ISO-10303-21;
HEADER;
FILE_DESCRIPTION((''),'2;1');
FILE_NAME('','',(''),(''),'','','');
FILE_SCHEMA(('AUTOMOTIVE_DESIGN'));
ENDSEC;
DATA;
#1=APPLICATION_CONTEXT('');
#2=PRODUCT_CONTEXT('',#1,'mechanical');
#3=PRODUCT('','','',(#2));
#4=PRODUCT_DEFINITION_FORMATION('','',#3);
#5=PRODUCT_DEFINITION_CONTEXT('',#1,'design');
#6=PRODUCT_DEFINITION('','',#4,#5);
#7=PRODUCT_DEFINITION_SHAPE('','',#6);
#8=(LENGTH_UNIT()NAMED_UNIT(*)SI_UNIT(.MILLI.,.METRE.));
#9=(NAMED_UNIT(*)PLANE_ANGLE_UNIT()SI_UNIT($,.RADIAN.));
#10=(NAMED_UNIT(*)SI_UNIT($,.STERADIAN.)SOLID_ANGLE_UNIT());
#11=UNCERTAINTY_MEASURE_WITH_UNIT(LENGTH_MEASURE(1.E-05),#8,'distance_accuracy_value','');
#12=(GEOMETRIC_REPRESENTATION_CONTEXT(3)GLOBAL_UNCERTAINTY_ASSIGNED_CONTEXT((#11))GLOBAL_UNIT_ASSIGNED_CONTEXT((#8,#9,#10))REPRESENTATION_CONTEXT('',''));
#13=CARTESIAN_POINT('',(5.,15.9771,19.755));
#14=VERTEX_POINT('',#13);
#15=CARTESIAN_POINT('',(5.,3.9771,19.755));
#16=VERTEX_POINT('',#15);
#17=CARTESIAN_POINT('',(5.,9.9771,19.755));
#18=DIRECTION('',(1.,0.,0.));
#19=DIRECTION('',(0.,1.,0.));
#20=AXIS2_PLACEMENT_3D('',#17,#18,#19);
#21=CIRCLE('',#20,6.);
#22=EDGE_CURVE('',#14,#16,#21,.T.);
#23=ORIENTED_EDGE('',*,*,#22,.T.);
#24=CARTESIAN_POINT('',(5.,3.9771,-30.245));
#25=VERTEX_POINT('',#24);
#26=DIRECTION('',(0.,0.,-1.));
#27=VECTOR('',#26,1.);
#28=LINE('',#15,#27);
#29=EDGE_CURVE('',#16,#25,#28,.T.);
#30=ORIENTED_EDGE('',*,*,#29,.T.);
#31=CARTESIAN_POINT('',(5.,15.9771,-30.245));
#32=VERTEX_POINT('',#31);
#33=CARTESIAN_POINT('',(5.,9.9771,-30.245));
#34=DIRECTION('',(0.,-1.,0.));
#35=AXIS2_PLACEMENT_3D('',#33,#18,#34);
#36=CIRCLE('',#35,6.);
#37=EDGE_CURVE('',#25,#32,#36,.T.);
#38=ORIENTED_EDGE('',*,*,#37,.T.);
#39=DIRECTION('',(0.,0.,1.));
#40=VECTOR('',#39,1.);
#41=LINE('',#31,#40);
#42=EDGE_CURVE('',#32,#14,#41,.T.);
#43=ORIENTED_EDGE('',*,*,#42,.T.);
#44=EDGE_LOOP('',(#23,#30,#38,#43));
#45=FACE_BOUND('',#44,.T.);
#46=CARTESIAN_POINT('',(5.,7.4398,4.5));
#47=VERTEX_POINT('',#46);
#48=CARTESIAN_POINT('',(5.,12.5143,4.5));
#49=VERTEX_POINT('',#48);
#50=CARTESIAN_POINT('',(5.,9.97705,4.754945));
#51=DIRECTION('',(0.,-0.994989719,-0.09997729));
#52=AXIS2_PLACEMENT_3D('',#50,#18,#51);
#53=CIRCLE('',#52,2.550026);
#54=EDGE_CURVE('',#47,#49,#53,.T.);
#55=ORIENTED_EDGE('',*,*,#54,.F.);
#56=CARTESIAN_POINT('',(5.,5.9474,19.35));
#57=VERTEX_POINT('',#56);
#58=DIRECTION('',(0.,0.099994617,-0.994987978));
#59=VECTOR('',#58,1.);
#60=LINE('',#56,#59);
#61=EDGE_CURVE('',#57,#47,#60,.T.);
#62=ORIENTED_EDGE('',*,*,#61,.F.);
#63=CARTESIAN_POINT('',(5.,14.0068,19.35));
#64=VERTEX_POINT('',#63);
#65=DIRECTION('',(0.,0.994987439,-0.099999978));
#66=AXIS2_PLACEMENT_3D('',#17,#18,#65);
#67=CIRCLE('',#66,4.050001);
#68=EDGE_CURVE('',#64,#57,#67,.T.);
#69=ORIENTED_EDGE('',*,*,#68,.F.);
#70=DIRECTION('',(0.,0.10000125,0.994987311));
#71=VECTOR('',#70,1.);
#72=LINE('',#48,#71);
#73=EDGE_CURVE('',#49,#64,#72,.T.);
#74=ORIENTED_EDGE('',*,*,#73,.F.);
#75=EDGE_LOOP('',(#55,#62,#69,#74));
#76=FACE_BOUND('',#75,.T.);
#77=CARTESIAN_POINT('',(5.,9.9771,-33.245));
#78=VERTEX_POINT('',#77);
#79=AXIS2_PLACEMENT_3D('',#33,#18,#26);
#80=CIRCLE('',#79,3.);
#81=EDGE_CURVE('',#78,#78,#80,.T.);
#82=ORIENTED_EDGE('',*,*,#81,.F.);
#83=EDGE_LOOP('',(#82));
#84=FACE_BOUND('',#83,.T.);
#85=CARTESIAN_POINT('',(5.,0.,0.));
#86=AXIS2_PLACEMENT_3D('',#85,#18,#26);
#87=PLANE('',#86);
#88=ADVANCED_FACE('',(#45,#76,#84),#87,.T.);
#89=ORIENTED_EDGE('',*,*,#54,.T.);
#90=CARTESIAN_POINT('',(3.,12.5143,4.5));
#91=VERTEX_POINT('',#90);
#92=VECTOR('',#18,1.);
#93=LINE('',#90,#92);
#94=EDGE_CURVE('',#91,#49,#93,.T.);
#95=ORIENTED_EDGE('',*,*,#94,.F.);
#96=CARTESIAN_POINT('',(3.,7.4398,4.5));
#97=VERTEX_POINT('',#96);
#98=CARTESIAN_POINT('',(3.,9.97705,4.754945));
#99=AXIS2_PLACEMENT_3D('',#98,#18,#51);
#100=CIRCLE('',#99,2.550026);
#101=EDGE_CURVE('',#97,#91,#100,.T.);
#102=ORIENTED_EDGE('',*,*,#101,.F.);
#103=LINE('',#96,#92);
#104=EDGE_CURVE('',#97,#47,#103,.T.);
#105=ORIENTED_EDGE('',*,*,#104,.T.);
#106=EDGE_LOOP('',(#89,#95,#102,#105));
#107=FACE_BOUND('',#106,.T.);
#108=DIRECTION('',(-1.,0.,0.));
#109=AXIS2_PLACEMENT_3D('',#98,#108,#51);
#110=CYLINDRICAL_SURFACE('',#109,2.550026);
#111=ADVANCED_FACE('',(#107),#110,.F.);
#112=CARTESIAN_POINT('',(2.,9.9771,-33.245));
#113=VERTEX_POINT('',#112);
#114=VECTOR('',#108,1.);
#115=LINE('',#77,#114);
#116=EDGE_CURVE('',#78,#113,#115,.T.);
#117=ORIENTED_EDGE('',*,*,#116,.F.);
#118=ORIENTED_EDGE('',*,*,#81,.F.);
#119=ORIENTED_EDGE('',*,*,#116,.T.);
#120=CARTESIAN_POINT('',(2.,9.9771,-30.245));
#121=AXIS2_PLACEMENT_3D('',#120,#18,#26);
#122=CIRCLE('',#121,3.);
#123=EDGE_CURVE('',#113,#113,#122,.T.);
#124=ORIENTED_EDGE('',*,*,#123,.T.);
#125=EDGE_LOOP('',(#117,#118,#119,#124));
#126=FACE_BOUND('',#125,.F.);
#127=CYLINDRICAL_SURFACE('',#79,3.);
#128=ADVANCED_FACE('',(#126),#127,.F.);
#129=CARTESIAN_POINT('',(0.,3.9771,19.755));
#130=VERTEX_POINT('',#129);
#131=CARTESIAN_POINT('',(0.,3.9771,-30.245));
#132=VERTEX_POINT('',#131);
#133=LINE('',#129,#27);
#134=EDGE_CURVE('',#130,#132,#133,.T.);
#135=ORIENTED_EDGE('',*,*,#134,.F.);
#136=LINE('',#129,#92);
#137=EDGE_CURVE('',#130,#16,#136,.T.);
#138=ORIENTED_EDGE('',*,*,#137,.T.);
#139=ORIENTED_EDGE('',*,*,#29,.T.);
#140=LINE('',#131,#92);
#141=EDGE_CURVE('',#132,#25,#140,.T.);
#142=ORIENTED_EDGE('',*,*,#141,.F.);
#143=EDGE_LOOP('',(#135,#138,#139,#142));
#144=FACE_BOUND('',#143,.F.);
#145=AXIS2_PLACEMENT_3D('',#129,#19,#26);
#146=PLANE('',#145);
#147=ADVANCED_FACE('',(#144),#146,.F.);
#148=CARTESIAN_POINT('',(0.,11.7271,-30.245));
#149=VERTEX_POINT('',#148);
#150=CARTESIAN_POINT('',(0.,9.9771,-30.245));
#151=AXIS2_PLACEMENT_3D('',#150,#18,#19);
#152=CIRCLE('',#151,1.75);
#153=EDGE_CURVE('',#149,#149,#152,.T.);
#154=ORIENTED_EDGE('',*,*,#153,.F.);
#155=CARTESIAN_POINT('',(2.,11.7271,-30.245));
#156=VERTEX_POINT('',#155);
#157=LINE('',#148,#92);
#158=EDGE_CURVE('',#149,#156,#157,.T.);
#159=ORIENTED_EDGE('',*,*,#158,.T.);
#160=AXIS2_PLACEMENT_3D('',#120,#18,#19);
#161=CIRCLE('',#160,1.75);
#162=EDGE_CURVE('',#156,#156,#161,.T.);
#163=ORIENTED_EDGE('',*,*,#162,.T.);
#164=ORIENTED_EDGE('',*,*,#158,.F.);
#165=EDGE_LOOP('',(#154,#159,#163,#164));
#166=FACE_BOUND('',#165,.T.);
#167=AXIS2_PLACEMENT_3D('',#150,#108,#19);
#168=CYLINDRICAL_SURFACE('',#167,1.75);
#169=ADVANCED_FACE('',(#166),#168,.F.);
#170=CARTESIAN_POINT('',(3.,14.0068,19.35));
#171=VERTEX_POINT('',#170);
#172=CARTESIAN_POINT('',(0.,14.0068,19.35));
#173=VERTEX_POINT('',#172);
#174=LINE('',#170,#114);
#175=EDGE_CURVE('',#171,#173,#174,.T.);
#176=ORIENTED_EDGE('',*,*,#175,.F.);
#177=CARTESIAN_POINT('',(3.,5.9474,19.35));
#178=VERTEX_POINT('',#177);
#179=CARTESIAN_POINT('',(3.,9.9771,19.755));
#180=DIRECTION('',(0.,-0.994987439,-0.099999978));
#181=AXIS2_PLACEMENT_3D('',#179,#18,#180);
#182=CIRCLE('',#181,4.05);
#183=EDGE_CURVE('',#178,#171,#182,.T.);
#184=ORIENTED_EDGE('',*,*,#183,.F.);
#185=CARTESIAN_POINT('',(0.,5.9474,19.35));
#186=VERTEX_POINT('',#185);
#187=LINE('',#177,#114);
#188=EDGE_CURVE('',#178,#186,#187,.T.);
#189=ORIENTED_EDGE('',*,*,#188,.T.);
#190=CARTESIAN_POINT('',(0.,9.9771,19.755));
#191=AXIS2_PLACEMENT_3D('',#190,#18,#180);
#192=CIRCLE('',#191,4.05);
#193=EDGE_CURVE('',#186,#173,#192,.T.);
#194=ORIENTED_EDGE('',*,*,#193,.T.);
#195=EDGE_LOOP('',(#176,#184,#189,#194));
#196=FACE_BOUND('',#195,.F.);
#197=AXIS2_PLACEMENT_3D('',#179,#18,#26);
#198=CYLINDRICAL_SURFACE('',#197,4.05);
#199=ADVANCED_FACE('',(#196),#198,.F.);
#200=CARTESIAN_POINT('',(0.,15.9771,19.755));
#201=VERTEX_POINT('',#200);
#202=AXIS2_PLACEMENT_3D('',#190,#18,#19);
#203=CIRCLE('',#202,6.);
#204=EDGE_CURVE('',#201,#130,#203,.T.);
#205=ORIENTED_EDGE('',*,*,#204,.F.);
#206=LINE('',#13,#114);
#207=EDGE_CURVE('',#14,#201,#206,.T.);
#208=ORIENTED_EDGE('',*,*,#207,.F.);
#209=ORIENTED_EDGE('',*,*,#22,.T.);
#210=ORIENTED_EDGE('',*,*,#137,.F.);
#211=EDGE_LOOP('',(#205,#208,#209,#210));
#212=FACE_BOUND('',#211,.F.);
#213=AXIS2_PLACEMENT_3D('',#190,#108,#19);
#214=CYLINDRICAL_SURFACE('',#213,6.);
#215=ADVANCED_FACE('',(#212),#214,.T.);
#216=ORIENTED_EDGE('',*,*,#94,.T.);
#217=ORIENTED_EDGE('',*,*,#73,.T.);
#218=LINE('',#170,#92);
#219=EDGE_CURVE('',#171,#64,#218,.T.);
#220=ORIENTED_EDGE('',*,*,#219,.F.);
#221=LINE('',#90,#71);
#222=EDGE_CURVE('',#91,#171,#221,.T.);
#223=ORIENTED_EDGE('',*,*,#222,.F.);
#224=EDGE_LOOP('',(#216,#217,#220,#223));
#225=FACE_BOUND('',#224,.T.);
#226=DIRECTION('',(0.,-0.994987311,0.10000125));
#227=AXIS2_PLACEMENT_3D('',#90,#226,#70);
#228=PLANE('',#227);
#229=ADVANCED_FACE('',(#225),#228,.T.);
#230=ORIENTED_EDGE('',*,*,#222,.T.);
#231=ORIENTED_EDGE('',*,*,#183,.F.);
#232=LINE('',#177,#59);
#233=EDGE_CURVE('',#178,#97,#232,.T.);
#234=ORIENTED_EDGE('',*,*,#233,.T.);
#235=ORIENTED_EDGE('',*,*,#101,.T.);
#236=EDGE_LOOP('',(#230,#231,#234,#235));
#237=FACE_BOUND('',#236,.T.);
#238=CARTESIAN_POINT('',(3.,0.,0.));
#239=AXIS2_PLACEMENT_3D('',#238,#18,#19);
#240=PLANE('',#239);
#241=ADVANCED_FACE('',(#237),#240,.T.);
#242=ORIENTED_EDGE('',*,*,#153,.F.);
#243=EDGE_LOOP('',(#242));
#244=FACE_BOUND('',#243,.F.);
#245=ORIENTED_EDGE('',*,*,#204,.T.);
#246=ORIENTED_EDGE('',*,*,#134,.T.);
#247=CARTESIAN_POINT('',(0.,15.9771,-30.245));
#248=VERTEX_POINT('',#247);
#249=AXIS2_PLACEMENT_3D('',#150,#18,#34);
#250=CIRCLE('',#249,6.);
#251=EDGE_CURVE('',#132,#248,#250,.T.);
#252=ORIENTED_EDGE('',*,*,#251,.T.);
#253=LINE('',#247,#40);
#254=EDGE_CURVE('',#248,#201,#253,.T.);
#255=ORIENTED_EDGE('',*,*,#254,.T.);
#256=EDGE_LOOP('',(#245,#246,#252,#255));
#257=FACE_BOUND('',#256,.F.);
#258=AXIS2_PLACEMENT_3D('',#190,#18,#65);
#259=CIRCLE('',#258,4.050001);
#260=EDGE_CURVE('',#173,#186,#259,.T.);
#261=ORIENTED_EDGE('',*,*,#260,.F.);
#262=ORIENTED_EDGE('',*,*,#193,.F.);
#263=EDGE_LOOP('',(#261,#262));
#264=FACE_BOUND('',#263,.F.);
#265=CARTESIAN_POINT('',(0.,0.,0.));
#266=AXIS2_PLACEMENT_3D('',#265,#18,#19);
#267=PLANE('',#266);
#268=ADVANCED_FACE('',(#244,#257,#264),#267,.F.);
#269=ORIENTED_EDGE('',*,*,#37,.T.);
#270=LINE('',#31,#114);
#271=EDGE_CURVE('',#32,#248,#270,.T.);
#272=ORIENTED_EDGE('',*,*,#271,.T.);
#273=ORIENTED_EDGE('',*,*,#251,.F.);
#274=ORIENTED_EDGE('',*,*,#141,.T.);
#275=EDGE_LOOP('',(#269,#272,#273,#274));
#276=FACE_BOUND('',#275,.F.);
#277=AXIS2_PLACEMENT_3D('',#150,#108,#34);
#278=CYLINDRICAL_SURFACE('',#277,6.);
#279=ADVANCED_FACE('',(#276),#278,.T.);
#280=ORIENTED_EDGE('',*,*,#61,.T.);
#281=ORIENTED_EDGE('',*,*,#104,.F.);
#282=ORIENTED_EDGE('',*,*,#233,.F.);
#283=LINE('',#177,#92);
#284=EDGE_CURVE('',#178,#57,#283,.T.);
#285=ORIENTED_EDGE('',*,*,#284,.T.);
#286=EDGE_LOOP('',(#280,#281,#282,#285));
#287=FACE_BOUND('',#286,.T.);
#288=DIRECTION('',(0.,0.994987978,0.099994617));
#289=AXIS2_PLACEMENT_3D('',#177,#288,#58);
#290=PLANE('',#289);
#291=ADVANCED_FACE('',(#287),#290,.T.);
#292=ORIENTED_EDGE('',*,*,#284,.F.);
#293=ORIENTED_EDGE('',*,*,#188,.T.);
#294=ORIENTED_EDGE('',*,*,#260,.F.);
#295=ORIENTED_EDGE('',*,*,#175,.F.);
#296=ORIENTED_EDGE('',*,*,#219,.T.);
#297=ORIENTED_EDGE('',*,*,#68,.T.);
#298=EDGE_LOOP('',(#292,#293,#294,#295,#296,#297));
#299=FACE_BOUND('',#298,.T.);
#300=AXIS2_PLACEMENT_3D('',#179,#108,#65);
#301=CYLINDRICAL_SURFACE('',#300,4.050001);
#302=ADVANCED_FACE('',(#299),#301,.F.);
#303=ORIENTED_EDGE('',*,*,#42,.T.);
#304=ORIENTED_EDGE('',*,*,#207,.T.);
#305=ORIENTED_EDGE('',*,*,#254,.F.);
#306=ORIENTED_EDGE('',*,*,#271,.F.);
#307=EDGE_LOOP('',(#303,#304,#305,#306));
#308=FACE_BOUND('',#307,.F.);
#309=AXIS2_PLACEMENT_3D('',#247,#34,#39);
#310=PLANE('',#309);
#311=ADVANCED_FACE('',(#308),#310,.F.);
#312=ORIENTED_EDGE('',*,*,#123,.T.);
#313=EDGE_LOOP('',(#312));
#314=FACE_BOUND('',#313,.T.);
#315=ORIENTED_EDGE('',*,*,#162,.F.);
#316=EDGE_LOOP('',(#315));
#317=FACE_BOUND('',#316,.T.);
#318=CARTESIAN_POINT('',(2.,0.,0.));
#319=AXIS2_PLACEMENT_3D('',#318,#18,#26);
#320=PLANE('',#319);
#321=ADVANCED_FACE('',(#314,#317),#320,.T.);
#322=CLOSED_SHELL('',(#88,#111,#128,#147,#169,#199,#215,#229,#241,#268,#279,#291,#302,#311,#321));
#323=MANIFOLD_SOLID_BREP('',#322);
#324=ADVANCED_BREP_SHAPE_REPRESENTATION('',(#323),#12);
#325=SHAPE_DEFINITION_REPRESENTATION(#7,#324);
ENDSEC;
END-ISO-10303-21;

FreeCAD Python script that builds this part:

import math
import FreeCAD as App
import Part
import Sketcher

V = App.Vector
Q = App.Units.Quantity

doc = App.newDocument("Part")
params = doc.addObject("Spreadsheet::Sheet", "Params")
for row, (alias, value) in enumerate([
    ("sketch1_radius", "6 mm"),
    ("sketch1_diameter", "3.5 mm"),
    ("sketch1_diameter2", "3.2 mm"),
    ("sketch1_height", "50 mm"),
    ("pad1_length", "3 mm"),
    ("sketch2_radius", "6 mm"),
    ("sketch2_diameter", "3.5 mm"),
    ("sketch2_height", "50 mm"),
    ("sketch2_radius2", "4.05 mm"),
    ("sketch2_radius3", "2.55 mm"),
    ("pad2_length", "2 mm"),
    ("sketch3_diameter", "8.1 mm"),
    ("pocket1_length", "3 mm"),
    ("sketch4_diameter", "6 mm"),
    ("pocket2_length", "3 mm"),
], start=1):
    params.set(f"A{row}", alias)
    params.set(f"B{row}", "=" + value)
    params.setAlias(f"B{row}", alias)

body = doc.addObject("PartDesign::Body", "Body")

sketch1 = body.newObject("Sketcher::SketchObject", "Sketch")
sketch1.AttachmentSupport = (doc.getObject("YZ_Plane"), [""])
sketch1.MapMode = "FlatFace"
sketch1.addGeometry([
    Part.ArcOfCircle(Part.Circle(V(10, 19.8, 0), V(0, 0, 1), 6), math.radians(0), math.radians(180)),
    Part.LineSegment(V(4, 19.8, 0), V(4, -30.2, 0)),
    Part.ArcOfCircle(Part.Circle(V(10, -30.2, 0), V(0, 0, 1), 6), math.radians(180), math.radians(360)),
    Part.LineSegment(V(16, -30.2, 0), V(16, 19.8, 0)),
    Part.Circle(V(10, -30.2, 0), V(0, 0, 1), 1.8),
    Part.Circle(V(10, 19.8, 0), V(0, 0, 1), 1.6),
], False)
sketch1.addConstraint([
    Sketcher.Constraint("Tangent", 0, 2, 1, 1),
    Sketcher.Constraint("Tangent", 1, 2, 2, 1),
    Sketcher.Constraint("Tangent", 2, 2, 3, 1),
    Sketcher.Constraint("Tangent", 3, 2, 0, 1),
    Sketcher.Constraint("Vertical", 1),
    Sketcher.Constraint("Vertical", 3),
    Sketcher.Constraint("Coincident", 4, 3, 2, 3),
    Sketcher.Constraint("Coincident", 5, 3, 0, 3),
    Sketcher.Constraint("Radius", 0, Q("6 mm")),
    Sketcher.Constraint("Diameter", 4, Q("3.5 mm")),
    Sketcher.Constraint("Diameter", 5, Q("3.2 mm")),
    Sketcher.Constraint("DistanceY", 1, 2, 1, 1, Q("50 mm")),
    Sketcher.Constraint("DistanceX", -1, 1, 0, 3, Q("9.977 mm")),
    Sketcher.Constraint("DistanceY", -1, 1, 0, 3, Q("19.755 mm")),
])
sketch1.setExpression("Constraints[8]", "Params.sketch1_radius")
sketch1.setExpression("Constraints[9]", "Params.sketch1_diameter")
sketch1.setExpression("Constraints[10]", "Params.sketch1_diameter2")
sketch1.setExpression("Constraints[11]", "Params.sketch1_height")
pad1 = body.newObject("PartDesign::Pad", "Pad")
pad1.Profile = sketch1
pad1.setExpression("Length", "Params.pad1_length")

sketch2 = body.newObject("Sketcher::SketchObject", "Sketch001")
sketch2.AttachmentSupport = (doc.getObject("YZ_Plane"), [""])
sketch2.MapMode = "FlatFace"
sketch2.AttachmentOffset = App.Placement(V(0, 0, 3), App.Rotation())
sketch2.addGeometry([
    Part.LineSegment(V(4, 19.8, 0), V(4, -30.2, 0)),
    Part.ArcOfCircle(Part.Circle(V(10, -30.2, 0), V(0, 0, 1), 6), math.radians(180), math.radians(360)),
    Part.LineSegment(V(16, -30.2, 0), V(16, 19.8, 0)),
    Part.ArcOfCircle(Part.Circle(V(10, 19.8, 0), V(0, 0, 1), 6), math.radians(0), math.radians(180)),
    Part.ArcOfCircle(Part.Circle(V(10, 19.8, 0), V(0, 0, 1), 4.1), math.radians(-6), math.radians(186)),
    Part.LineSegment(V(14, 19.4, 0), V(12.5, 4.5, 0)),
    Part.ArcOfCircle(Part.Circle(V(10, 4.8, 0), V(0, 0, 1), 2.6), math.radians(-174), math.radians(-6)),
    Part.LineSegment(V(7.4, 4.5, 0), V(5.9, 19.4, 0)),
    Part.Circle(V(10, -30.2, 0), V(0, 0, 1), 1.8),
], False)
sketch2.addConstraint([
    Sketcher.Constraint("Tangent", 0, 2, 1, 1),
    Sketcher.Constraint("Tangent", 1, 2, 2, 1),
    Sketcher.Constraint("Tangent", 2, 2, 3, 1),
    Sketcher.Constraint("Tangent", 3, 2, 0, 1),
    Sketcher.Constraint("Tangent", 4, 1, 5, 1),
    Sketcher.Constraint("Tangent", 5, 2, 6, 2),
    Sketcher.Constraint("Tangent", 6, 1, 7, 1),
    Sketcher.Constraint("Tangent", 7, 2, 4, 2),
    Sketcher.Constraint("Vertical", 0),
    Sketcher.Constraint("Vertical", 2),
    Sketcher.Constraint("Coincident", 4, 3, 3, 3),
    Sketcher.Constraint("Coincident", 8, 3, 1, 3),
    Sketcher.Constraint("Horizontal", 5, 2, 6, 1),
    Sketcher.Constraint("Radius", 1, Q("6 mm")),
    Sketcher.Constraint("DistanceY", 6, 3, 3, 3, Q("15 mm")),
    Sketcher.Constraint("Diameter", 8, Q("3.5 mm")),
    Sketcher.Constraint("DistanceY", -1, 1, 5, 2, Q("4.5 mm")),
    Sketcher.Constraint("DistanceY", 0, 2, 0, 1, Q("50 mm")),
    Sketcher.Constraint("Radius", 4, Q("4.05 mm")),
    Sketcher.Constraint("Radius", 6, Q("2.55 mm")),
    Sketcher.Constraint("DistanceX", -1, 1, 1, 3, Q("9.977 mm")),
])
sketch2.setExpression("Constraints[13]", "Params.sketch2_radius")
sketch2.setExpression("Constraints[15]", "Params.sketch2_diameter")
sketch2.setExpression("Constraints[17]", "Params.sketch2_height")
sketch2.setExpression("Constraints[18]", "Params.sketch2_radius2")
sketch2.setExpression("Constraints[19]", "Params.sketch2_radius3")
pad2 = body.newObject("PartDesign::Pad", "Pad001")
pad2.Profile = sketch2
pad2.setExpression("Length", "Params.pad2_length")

sketch3 = body.newObject("Sketcher::SketchObject", "Sketch002")
sketch3.AttachmentSupport = (doc.getObject("YZ_Plane"), [""])
sketch3.MapMode = "FlatFace"
sketch3.AttachmentOffset = App.Placement(V(0, 0, 3), App.Rotation())
sketch3.addGeometry(Part.Circle(V(10, 19.8, 0), V(0, 0, 1), 4), False)
sketch3.addConstraint([
    Sketcher.Constraint("Diameter", 0, Q("8.1 mm")),
    Sketcher.Constraint("DistanceX", -1, 1, 0, 3, Q("9.977 mm")),
    Sketcher.Constraint("DistanceY", -1, 1, 0, 3, Q("19.755 mm")),
])
sketch3.setExpression("Constraints[0]", "Params.sketch3_diameter")
pocket1 = body.newObject("PartDesign::Pocket", "Pocket")
pocket1.Profile = sketch3
pocket1.setExpression("Length", "Params.pocket1_length")

sketch4 = body.newObject("Sketcher::SketchObject", "Sketch003")
sketch4.AttachmentSupport = (doc.getObject("YZ_Plane"), [""])
sketch4.MapMode = "FlatFace"
sketch4.AttachmentOffset = App.Placement(V(0, 0, 5), App.Rotation())
sketch4.addGeometry(Part.Circle(V(10, -30.2, 0), V(0, 0, 1), 3), False)
sketch4.addConstraint([
    Sketcher.Constraint("Diameter", 0, Q("6 mm")),
    Sketcher.Constraint("DistanceX", -1, 1, 0, 3, Q("9.977 mm")),
    Sketcher.Constraint("DistanceY", 0, 3, -1, 1, Q("30.245 mm")),
])
sketch4.setExpression("Constraints[0]", "Params.sketch4_diameter")
pocket2 = body.newObject("PartDesign::Pocket", "Pocket001")
pocket2.Profile = sketch4
pocket2.setExpression("Length", "Params.pocket2_length")

doc.recompute()
